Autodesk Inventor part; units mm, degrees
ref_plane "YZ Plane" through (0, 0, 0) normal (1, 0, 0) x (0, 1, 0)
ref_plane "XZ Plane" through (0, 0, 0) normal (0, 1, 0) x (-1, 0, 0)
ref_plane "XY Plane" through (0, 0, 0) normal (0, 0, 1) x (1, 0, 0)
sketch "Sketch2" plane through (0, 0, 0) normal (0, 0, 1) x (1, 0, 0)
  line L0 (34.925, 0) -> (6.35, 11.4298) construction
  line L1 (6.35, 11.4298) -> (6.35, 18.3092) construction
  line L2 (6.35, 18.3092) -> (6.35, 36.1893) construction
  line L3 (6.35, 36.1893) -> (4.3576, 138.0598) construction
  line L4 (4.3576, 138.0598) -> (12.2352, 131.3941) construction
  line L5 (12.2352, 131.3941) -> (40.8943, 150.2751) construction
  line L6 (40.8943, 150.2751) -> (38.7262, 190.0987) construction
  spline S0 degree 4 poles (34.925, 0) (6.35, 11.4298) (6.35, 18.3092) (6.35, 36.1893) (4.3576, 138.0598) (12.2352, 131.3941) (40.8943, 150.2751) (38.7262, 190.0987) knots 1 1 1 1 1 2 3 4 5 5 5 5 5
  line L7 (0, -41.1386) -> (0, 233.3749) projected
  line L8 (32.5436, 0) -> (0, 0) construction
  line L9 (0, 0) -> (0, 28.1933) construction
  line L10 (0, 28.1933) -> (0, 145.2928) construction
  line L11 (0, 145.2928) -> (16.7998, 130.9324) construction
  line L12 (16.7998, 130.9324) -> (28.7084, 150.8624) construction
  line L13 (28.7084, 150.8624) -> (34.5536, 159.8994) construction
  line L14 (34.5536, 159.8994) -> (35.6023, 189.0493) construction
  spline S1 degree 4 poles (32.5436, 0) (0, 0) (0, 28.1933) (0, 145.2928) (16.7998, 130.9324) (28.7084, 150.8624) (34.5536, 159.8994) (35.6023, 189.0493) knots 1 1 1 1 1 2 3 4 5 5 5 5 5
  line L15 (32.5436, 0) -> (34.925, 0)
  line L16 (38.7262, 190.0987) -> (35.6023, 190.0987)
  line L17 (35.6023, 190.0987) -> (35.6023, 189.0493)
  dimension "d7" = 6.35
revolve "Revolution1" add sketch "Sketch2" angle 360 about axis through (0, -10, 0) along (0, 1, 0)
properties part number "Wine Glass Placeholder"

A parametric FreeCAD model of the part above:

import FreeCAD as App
import Part
import Sketcher
from FreeCAD import Vector

doc = App.newDocument("Part")
body = doc.addObject("PartDesign::Body", "Body")

# Sketch on XY plane
sketch1 = body.newObject("Sketcher::SketchObject", "Sketch")
sketch1.AttachmentSupport = (doc.getObject("XY_Plane"), [""])
sketch1.MapMode = "FlatFace"
sketch1.addGeometry(Part.LineSegment(Vector(32.5436, 0, 0), Vector(34.925, 0, 0)), False)
sketch1.addGeometry(Part.BSplineCurve([Vector(34.925, 0, 0), Vector(6.35, 11.4298, 0), Vector(6.35, 18.3092, 0), Vector(6.35, 36.1893, 0), Vector(4.3576, 138.0598, 0), Vector(12.2352, 131.3941, 0), Vector(40.8943, 150.2751, 0), Vector(38.7262, 190.0987, 0)], [5, 1, 1, 1, 5], [1, 2, 3, 4, 5], False, 4, [1, 1, 1, 1, 1, 1, 1, 1], False), False)
sketch1.addGeometry(Part.LineSegment(Vector(38.7262, 190.0987, 0), Vector(35.6023, 190.0987, 0)), False)
sketch1.addGeometry(Part.LineSegment(Vector(35.6023, 190.0987, 0), Vector(35.6023, 189.0493, 0)), False)
sketch1.addGeometry(Part.BSplineCurve([Vector(32.5436, 0, 0), Vector(0, 0, 0), Vector(0, 28.1933, 0), Vector(0, 145.2928, 0), Vector(16.7998, 130.9324, 0), Vector(28.7084, 150.8624, 0), Vector(34.5536, 159.8994, 0), Vector(35.6023, 189.0493, 0)], [5, 1, 1, 1, 5], [1, 2, 3, 4, 5], False, 4, [1, 1, 1, 1, 1, 1, 1, 1], False), False)
sketch1.addConstraint(Sketcher.Constraint("Block", 1))
sketch1.addConstraint(Sketcher.Constraint("Block", 4))
sketch1.addConstraint(Sketcher.Constraint("Coincident", 0, 2, 1, 1))
sketch1.addConstraint(Sketcher.Constraint("Coincident", 1, 2, 2, 1))
sketch1.addConstraint(Sketcher.Constraint("Coincident", 2, 2, 3, 1))
sketch1.addConstraint(Sketcher.Constraint("Coincident", 3, 2, 4, 2))
sketch1.addConstraint(Sketcher.Constraint("Coincident", 4, 1, 0, 1))
sketch1.addConstraint(Sketcher.Constraint("Horizontal", 2))
sketch1.addConstraint(Sketcher.Constraint("Vertical", 3))
revolution = body.newObject("PartDesign::Revolution", "Revolution")
revolution.Profile = sketch1
revolution.ReferenceAxis = (sketch1, ["V_Axis"])
revolution.Angle = 360

doc.recompute()
